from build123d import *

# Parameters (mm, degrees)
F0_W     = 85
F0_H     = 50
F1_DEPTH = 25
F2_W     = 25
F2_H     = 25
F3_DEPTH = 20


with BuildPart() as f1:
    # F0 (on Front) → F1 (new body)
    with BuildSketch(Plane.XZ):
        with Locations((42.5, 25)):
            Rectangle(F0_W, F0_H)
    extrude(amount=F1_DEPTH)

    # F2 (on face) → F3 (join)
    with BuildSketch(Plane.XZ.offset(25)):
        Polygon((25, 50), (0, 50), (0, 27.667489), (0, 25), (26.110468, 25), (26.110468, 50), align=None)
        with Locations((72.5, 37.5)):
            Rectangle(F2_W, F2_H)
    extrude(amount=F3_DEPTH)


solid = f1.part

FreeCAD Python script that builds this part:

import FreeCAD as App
import Part
import Sketcher
from FreeCAD import Vector
Q = App.Units.Quantity


def add_polygon(sketch, points):
    """Adds a closed chain of lines whose ends are joined by coincident constraints."""
    first, n = sketch.GeometryCount, len(points)
    for a, b in zip(points, points[1:] + points[:1]):
        sketch.addGeometry(Part.LineSegment(App.Vector(*a, 0), App.Vector(*b, 0)), False)
    for i in range(n):
        sketch.addConstraint(Sketcher.Constraint("Coincident", first + i, 2, first + (i + 1) % n, 1))

doc = App.newDocument("Part")
body = doc.addObject("PartDesign::Body", "Body")

# Sketch on XZ plane
sketch1 = doc.addObject("Sketcher::SketchObject", "Sketch")
body.addObject(sketch1)
sketch1.AttachmentSupport = (doc.XZ_Plane, [""])
sketch1.MapMode = "FlatFace"
add_polygon(sketch1, [(0, 50), (0, 0), (85, 0), (85, 50)])  # lines 0-3
sketch1.addConstraint([
    Sketcher.Constraint("Vertical", 0),
    Sketcher.Constraint("Horizontal", 1),
    Sketcher.Constraint("Vertical", 2),
    Sketcher.Constraint("Horizontal", 3),
    Sketcher.Constraint("Coincident", 0, 2, -1, 1),
    Sketcher.Constraint("DistanceX", 1, 1, 1, 2, Q("85 mm")),
    Sketcher.Constraint("DistanceY", 0, 2, 0, 1, Q("50 mm")),
])
pad1 = doc.addObject("PartDesign::Pad", "Pad")
body.addObject(pad1)
pad1.Profile = sketch1
pad1.Length = 25

# Sketch on XZ plane
sketch2 = doc.addObject("Sketcher::SketchObject", "Sketch001")
body.addObject(sketch2)
sketch2.AttachmentSupport = (doc.XZ_Plane, [""])
sketch2.MapMode = "FlatFace"
sketch2.AttachmentOffset = App.Placement(Vector(0, 0, 25), App.Rotation())
add_polygon(sketch2, [(0, 50), (0, 25), (26.110468, 25), (26.110468, 50)])  # lines 0-3
add_polygon(sketch2, [(60, 50), (60, 25), (85, 25), (85, 50)])  # lines 4-7
sketch2.addConstraint([
    Sketcher.Constraint("Vertical", 0),
    Sketcher.Constraint("Horizontal", 1),
    Sketcher.Constraint("Vertical", 2),
    Sketcher.Constraint("Horizontal", 3),
    Sketcher.Constraint("Vertical", 4),
    Sketcher.Constraint("Horizontal", 5),
    Sketcher.Constraint("Vertical", 6),
    Sketcher.Constraint("Horizontal", 7),
    Sketcher.Constraint("PointOnObject", 0, 2, -2),
    Sketcher.Constraint("Horizontal", 1, 2, 4, 2),
    Sketcher.Constraint("Horizontal", 3, 2, 6, 2),
    Sketcher.Constraint("Equal", 7, 0),
    Sketcher.Constraint("DistanceX", 5, 1, 5, 2, Q("25 mm")),
    Sketcher.Constraint("DistanceY", -1, 1, 0, 2, Q("25 mm")),
    Sketcher.Constraint("DistanceX", -1, 1, 4, 2, Q("60 mm")),
    Sketcher.Constraint("DistanceX", 1, 1, 1, 2, Q("26.110468 mm")),
])
pad2 = doc.addObject("PartDesign::Pad", "Pad001")
body.addObject(pad2)
pad2.Profile = sketch2
pad2.Length = 20

doc.recompute()
